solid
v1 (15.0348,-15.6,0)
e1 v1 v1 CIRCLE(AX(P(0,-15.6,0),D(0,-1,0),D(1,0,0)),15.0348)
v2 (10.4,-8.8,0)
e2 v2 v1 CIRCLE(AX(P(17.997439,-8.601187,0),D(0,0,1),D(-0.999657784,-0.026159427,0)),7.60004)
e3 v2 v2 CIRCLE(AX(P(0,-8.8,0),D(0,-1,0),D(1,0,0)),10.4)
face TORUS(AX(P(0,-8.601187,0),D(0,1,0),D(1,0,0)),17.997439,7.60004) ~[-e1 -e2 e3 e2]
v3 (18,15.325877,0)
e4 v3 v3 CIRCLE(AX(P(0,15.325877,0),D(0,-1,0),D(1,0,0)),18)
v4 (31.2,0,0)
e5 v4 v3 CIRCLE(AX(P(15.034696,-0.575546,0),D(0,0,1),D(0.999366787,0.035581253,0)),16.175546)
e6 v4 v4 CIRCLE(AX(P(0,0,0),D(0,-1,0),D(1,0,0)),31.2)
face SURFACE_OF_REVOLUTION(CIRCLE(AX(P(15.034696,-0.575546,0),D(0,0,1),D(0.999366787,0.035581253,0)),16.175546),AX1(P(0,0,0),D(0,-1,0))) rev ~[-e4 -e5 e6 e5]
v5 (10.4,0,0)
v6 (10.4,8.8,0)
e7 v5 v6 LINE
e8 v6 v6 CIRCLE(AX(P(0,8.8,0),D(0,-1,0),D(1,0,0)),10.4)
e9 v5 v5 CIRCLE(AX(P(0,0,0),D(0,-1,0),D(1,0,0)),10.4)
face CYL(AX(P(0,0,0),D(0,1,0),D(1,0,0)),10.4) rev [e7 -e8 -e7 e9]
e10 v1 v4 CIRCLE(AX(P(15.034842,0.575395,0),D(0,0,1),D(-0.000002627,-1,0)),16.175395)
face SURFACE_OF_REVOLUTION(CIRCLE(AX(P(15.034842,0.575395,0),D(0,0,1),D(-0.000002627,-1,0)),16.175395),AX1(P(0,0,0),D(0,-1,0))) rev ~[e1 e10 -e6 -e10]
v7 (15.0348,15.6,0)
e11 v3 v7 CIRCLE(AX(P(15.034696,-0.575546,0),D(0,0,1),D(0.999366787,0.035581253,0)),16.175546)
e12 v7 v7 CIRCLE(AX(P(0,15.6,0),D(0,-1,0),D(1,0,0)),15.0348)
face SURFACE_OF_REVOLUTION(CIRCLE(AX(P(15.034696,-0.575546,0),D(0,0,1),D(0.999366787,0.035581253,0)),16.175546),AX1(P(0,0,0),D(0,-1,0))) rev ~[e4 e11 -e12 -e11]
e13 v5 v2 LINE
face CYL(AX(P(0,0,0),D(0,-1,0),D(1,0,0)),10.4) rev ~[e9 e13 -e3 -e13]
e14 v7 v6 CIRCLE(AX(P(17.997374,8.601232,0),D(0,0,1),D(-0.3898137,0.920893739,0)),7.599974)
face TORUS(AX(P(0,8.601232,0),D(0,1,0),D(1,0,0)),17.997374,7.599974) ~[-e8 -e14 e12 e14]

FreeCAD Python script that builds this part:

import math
import FreeCAD as App
import Part
import Sketcher

doc = App.newDocument("Part")
body = doc.addObject("PartDesign::Body", "Body")

sketch1 = body.newObject("Sketcher::SketchObject", "Sketch")
sketch1.AttachmentSupport = (doc.getObject("XY_Plane"), [""])
sketch1.MapMode = "FlatFace"
sketch1.addGeometry([
    Part.LineSegment(App.Vector(10, 9, 0), App.Vector(10, -9, 0)),
    Part.ArcOfCircle(Part.Circle(App.Vector(18, -9, 0), App.Vector(0, 0, 1), 8), math.radians(-179), math.radians(-113)),
    Part.ArcOfCircle(Part.Circle(App.Vector(15, 1, 0), App.Vector(0, 0, 1), 16), math.radians(-90), math.radians(-2)),
    Part.ArcOfCircle(Part.Circle(App.Vector(15, -1, 0), App.Vector(0, 0, 1), 16), math.radians(2), math.radians(90)),
    Part.ArcOfCircle(Part.Circle(App.Vector(18, 9, 0), App.Vector(0, 0, 1), 8), math.radians(113), math.radians(179)),
], False)
sketch1.addConstraint([
    Sketcher.Constraint("Coincident", 0, 2, 1, 1),
    Sketcher.Constraint("Coincident", 1, 2, 2, 1),
    Sketcher.Constraint("Coincident", 2, 2, 3, 1),
    Sketcher.Constraint("Coincident", 3, 2, 4, 1),
    Sketcher.Constraint("Coincident", 4, 2, 0, 1),
    Sketcher.Constraint("Vertical", 0),
    Sketcher.Constraint("Equal", 2, 3),
    Sketcher.Constraint("Equal", 1, 4),
    Sketcher.Constraint("Symmetric", 2, 3, 3, 3, -1),
    Sketcher.Constraint("Symmetric", 1, 3, 4, 3, -1),
    Sketcher.Constraint("Vertical", 3, 3, 1, 2),
    Sketcher.Constraint("DistanceX", -1, 1, 0, 2, 10.4),
    Sketcher.Constraint("DistanceY", 0, 2, -1, 1, 8.8),
    Sketcher.Constraint("DistanceY", 1, 2, -1, 1, 15.6),
    Sketcher.Constraint("DistanceX", -1, 1, 2, 2, 31.2),
    Sketcher.Constraint("Radius", 1, 7.6),
    Sketcher.Constraint("Radius", 2, 16.1755),
])
revolution = body.newObject("PartDesign::Revolution", "Revolution")
revolution.Profile = sketch1
revolution.ReferenceAxis = (sketch1, ["V_Axis"])
revolution.Angle = 360

doc.recompute()
